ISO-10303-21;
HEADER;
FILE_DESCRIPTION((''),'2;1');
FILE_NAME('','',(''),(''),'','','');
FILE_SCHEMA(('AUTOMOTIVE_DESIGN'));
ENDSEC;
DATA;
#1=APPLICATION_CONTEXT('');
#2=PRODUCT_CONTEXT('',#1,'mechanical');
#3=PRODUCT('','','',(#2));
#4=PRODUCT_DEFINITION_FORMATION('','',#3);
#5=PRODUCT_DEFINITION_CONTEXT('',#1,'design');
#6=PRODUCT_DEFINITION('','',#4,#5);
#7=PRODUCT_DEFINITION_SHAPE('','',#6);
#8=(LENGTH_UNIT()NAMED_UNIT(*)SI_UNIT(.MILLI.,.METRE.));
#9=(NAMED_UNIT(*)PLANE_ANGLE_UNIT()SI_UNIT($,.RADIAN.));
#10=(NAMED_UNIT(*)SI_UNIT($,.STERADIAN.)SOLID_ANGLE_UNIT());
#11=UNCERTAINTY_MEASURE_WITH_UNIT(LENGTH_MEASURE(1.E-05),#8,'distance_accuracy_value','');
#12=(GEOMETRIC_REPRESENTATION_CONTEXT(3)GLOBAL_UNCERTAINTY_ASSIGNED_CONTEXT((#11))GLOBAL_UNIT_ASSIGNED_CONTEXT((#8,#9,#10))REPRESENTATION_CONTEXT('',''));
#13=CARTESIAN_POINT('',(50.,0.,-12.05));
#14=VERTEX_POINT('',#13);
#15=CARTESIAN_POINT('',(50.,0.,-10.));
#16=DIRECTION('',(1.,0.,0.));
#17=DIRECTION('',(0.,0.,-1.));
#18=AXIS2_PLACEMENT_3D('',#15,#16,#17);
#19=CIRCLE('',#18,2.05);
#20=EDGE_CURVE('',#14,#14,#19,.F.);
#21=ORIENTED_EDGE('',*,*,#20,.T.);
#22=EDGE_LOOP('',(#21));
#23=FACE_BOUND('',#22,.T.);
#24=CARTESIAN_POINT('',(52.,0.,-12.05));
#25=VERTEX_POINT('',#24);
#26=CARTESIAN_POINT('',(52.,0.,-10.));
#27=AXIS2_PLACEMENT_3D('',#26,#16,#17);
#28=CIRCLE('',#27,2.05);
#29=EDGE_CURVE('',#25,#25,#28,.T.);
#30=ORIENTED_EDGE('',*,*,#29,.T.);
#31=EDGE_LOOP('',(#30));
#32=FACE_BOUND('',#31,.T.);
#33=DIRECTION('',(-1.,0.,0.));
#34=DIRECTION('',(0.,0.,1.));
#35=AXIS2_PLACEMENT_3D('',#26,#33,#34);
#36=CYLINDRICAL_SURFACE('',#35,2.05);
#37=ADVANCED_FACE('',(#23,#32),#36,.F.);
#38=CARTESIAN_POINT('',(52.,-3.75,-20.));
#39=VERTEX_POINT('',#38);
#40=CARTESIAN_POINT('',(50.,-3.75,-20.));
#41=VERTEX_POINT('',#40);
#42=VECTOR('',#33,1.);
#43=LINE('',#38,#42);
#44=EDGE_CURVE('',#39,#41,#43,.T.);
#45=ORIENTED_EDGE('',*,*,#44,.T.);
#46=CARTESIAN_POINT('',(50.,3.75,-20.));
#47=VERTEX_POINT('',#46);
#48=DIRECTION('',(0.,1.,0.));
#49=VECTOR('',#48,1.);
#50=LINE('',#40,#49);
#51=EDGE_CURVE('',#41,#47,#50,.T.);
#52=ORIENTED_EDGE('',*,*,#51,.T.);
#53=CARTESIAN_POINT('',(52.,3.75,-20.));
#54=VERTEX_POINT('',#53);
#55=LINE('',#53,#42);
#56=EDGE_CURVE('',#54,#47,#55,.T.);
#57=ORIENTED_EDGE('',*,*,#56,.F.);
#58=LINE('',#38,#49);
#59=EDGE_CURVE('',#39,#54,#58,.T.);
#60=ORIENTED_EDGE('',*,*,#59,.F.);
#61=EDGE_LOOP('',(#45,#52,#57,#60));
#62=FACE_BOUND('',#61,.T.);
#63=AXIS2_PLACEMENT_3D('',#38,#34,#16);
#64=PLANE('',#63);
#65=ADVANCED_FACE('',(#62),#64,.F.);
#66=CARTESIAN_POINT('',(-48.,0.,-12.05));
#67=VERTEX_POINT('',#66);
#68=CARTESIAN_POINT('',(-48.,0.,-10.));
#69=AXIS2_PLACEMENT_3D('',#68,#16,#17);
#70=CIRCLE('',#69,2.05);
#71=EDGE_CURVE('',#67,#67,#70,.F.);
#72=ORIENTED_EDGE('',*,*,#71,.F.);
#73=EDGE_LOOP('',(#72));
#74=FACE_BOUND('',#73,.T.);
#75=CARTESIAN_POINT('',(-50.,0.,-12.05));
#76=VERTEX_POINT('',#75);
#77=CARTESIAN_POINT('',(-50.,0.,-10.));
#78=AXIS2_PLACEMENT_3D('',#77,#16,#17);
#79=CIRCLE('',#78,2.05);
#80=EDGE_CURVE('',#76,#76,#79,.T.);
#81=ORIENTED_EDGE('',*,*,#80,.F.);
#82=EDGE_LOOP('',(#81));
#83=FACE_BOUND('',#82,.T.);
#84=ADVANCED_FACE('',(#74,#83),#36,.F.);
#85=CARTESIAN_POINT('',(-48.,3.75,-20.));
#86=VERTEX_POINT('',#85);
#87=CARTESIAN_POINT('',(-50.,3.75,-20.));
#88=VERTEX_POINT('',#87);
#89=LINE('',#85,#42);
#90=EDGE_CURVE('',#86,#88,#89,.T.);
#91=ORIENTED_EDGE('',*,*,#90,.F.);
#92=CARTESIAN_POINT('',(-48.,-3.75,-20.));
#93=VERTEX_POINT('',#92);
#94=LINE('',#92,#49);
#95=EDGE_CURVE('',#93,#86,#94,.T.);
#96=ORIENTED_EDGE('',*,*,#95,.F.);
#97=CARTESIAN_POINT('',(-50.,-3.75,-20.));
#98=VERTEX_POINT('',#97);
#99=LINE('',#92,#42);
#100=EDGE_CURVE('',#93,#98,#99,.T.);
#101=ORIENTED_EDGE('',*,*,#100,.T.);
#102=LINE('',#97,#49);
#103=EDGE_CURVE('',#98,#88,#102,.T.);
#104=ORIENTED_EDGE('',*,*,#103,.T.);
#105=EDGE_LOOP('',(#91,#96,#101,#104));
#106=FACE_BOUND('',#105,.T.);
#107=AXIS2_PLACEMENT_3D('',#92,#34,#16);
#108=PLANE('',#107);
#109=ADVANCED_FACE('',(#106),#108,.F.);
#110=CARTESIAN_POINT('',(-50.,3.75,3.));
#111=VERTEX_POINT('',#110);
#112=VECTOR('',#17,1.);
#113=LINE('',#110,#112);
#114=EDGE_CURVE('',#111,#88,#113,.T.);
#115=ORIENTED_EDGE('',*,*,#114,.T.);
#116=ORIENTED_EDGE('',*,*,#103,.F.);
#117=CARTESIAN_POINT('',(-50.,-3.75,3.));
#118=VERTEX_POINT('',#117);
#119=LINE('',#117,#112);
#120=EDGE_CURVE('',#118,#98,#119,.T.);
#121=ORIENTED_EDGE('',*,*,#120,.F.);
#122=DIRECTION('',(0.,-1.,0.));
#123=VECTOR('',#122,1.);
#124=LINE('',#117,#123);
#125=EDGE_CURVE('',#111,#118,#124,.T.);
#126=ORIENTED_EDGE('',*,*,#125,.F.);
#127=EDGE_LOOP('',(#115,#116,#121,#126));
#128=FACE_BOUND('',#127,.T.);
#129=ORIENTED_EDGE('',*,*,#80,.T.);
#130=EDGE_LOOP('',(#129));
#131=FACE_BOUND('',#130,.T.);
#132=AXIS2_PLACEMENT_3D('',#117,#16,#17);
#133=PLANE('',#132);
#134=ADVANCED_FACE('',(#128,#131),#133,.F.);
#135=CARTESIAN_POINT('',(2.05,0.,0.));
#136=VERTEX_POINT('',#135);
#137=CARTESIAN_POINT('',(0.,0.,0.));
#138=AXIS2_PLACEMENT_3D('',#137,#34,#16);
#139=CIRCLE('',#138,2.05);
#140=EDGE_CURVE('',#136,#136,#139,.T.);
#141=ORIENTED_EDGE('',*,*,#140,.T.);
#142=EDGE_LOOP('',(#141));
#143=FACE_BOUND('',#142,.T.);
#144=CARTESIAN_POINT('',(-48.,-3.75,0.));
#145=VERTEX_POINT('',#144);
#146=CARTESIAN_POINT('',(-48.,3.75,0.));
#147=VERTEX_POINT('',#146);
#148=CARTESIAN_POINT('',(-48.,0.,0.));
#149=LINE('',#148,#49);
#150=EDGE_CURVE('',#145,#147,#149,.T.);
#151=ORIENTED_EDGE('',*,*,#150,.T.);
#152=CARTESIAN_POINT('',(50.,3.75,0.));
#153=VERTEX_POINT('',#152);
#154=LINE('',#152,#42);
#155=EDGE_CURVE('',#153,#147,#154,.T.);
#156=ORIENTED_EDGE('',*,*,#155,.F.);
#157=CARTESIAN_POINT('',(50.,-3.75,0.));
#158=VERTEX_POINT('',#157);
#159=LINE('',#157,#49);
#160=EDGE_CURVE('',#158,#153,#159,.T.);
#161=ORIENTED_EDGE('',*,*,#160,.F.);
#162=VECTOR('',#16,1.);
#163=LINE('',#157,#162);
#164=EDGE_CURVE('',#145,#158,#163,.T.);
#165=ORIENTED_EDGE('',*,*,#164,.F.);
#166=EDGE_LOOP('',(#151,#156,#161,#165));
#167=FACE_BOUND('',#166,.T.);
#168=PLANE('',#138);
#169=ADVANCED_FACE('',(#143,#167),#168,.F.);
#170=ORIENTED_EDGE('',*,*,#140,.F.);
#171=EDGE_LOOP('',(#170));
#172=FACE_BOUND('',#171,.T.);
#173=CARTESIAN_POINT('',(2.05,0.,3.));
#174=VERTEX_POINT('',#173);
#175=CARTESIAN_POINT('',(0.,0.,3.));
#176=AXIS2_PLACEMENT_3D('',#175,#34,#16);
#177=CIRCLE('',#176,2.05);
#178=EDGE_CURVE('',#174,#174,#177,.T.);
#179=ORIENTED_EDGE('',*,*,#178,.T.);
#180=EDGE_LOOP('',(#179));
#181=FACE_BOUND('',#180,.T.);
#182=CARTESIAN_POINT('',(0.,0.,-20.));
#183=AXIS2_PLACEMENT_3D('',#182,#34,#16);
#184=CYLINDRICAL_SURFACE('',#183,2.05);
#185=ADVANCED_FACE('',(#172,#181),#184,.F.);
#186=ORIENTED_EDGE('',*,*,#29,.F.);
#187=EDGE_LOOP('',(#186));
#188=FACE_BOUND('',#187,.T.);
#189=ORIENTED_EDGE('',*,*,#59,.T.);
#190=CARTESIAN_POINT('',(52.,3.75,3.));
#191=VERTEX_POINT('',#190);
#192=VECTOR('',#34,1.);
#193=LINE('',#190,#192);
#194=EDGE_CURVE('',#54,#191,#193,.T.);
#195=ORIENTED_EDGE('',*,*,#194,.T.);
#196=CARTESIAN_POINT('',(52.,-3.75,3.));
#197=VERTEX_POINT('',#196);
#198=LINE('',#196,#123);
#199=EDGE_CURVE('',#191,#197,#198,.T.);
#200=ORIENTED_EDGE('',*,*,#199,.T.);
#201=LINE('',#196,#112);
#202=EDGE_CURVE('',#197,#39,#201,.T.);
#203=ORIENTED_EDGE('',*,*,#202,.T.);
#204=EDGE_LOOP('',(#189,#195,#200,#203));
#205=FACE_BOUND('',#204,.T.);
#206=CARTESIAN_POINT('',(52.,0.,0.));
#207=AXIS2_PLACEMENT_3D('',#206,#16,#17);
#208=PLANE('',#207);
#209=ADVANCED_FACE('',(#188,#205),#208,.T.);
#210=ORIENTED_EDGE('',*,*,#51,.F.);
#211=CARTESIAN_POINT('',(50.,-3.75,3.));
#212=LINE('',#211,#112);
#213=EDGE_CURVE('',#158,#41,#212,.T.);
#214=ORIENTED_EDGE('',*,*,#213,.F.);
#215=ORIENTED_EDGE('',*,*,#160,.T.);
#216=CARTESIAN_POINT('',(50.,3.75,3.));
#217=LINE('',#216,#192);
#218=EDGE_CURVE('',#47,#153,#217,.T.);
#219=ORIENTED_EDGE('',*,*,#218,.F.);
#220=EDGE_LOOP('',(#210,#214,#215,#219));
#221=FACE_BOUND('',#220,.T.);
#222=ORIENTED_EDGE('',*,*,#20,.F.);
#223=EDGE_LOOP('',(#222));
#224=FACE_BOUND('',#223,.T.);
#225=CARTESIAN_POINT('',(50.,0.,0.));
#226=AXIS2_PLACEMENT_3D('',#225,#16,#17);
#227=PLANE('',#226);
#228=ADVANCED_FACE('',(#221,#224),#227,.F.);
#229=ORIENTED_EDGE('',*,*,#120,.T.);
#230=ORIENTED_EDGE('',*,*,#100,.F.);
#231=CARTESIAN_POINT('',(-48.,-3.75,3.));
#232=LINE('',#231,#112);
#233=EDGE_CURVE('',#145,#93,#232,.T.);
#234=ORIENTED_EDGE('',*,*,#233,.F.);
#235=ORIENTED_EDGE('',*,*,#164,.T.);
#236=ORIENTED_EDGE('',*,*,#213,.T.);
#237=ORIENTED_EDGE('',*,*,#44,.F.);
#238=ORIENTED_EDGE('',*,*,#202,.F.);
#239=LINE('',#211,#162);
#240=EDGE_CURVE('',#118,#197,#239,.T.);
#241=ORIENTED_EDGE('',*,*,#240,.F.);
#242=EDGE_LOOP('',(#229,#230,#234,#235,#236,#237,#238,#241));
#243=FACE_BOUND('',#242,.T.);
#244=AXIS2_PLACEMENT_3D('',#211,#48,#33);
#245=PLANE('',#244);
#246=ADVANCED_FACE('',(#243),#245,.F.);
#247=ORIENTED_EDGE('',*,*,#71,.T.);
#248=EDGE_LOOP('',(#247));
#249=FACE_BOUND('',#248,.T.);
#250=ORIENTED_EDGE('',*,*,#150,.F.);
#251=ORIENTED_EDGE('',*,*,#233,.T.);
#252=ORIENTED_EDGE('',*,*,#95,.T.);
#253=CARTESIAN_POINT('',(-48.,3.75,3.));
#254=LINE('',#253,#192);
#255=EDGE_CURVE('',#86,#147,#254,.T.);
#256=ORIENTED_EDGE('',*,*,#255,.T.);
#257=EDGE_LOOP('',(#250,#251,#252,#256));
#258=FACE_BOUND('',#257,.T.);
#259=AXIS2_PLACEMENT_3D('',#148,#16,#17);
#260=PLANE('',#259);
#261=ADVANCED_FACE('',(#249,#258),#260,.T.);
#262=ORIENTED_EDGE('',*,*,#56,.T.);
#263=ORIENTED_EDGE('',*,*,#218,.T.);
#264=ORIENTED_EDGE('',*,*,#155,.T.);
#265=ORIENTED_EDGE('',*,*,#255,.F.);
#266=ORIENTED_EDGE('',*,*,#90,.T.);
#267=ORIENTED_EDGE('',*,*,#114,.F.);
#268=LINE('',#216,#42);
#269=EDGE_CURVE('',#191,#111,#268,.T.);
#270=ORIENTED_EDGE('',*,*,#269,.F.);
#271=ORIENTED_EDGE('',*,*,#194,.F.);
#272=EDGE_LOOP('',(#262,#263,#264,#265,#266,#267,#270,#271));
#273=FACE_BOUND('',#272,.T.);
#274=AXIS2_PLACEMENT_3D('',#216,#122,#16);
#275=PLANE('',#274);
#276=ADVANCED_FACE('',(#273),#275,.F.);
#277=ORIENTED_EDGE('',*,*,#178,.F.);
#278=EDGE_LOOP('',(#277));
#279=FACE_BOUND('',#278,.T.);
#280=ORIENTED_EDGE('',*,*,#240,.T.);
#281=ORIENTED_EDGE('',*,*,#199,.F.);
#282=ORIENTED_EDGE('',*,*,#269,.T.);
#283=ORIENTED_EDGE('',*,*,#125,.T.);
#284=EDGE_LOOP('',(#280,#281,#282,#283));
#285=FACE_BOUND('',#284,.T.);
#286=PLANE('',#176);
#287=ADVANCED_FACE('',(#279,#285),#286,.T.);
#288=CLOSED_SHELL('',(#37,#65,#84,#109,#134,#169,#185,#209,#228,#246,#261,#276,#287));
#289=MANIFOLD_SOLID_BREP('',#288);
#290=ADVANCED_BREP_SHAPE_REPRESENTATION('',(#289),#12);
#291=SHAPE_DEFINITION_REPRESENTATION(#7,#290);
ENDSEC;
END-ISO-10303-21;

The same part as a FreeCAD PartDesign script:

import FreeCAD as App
import Part
import Sketcher
from FreeCAD import Vector

doc = App.newDocument("Part")
body = doc.addObject("PartDesign::Body", "Body")

sketch1 = doc.addObject("Sketcher::SketchObject", "Sketch")
body.addObject(sketch1)
sketch1.AttachmentSupport = (doc.XY_Plane, [""])
sketch1.MapMode = "FlatFace"
sketch1.addGeometry([
    Part.LineSegment(Vector(-50, 4, 0), Vector(-50, -4, 0)),
    Part.LineSegment(Vector(-50, -4, 0), Vector(50, -4, 0)),
    Part.LineSegment(Vector(50, -4, 0), Vector(50, 4, 0)),
    Part.LineSegment(Vector(50, 4, 0), Vector(-50, 4, 0)),
], False)
sketch1.addConstraint([
    Sketcher.Constraint("Coincident", 0, 2, 1, 1),
    Sketcher.Constraint("Coincident", 1, 2, 2, 1),
    Sketcher.Constraint("Coincident", 2, 2, 3, 1),
    Sketcher.Constraint("Coincident", 3, 2, 0, 1),
    Sketcher.Constraint("Vertical", 0),
    Sketcher.Constraint("Horizontal", 1),
    Sketcher.Constraint("Vertical", 2),
    Sketcher.Constraint("Horizontal", 3),
    Sketcher.Constraint("Symmetric", 0, 2, 2, 2, -1, 1),
    Sketcher.Constraint("DistanceX", 1, 1, 1, 2, 100.0),
    Sketcher.Constraint("DistanceY", 0, 2, 0, 1, 7.5),
])
pad1 = doc.addObject("PartDesign::Pad", "Pad")
body.addObject(pad1)
pad1.Profile = sketch1
pad1.Length = 3

sketch2 = doc.addObject("Sketcher::SketchObject", "Sketch001")
body.addObject(sketch2)
sketch2.AttachmentSupport = (doc.YZ_Plane, [""])
sketch2.MapMode = "FlatFace"
sketch2.AttachmentOffset = App.Placement(Vector(0, 0, 50), App.Rotation())
sketch2.addGeometry([
    Part.LineSegment(Vector(4, 3, 0), Vector(-4, 3, 0)),
    Part.LineSegment(Vector(-4, 3, 0), Vector(-4, -20, 0)),
    Part.LineSegment(Vector(-4, -20, 0), Vector(4, -20, 0)),
    Part.LineSegment(Vector(4, -20, 0), Vector(4, 3, 0)),
], False)
sketch2.addConstraint([
    Sketcher.Constraint("Coincident", 0, 2, 1, 1),
    Sketcher.Constraint("Coincident", 1, 2, 2, 1),
    Sketcher.Constraint("Coincident", 2, 2, 3, 1),
    Sketcher.Constraint("Coincident", 3, 2, 0, 1),
    Sketcher.Constraint("Horizontal", 0),
    Sketcher.Constraint("Vertical", 1),
    Sketcher.Constraint("Horizontal", 2),
    Sketcher.Constraint("Vertical", 3),
    Sketcher.Constraint("DistanceY", 1, 2, 1, 1, 23.0),
    Sketcher.Constraint("DistanceX", 0, 2, 0, 1, 7.5),
    Sketcher.Constraint("DistanceY", -1, 1, 0, 2, 3.0),
    Sketcher.Constraint("DistanceX", 0, 2, -1, 1, 3.75),
])
pad2 = doc.addObject("PartDesign::Pad", "Pad001")
body.addObject(pad2)
pad2.Profile = sketch2
pad2.Length = 2

sketch3 = doc.addObject("Sketcher::SketchObject", "Sketch002")
body.addObject(sketch3)
sketch3.AttachmentSupport = (doc.YZ_Plane, [""])
sketch3.MapMode = "FlatFace"
sketch3.AttachmentOffset = App.Placement(Vector(0, 0, -50), App.Rotation())
sketch3.addGeometry([
    Part.LineSegment(Vector(4, 3, 0), Vector(-4, 3, 0)),
    Part.LineSegment(Vector(-4, 3, 0), Vector(-4, -20, 0)),
    Part.LineSegment(Vector(-4, -20, 0), Vector(4, -20, 0)),
    Part.LineSegment(Vector(4, -20, 0), Vector(4, 3, 0)),
], False)
sketch3.addConstraint([
    Sketcher.Constraint("Coincident", 0, 2, 1, 1),
    Sketcher.Constraint("Coincident", 1, 2, 2, 1),
    Sketcher.Constraint("Coincident", 2, 2, 3, 1),
    Sketcher.Constraint("Coincident", 3, 2, 0, 1),
    Sketcher.Constraint("Horizontal", 0),
    Sketcher.Constraint("Vertical", 1),
    Sketcher.Constraint("Horizontal", 2),
    Sketcher.Constraint("Vertical", 3),
    Sketcher.Constraint("DistanceY", 1, 2, 1, 1, 23.0),
    Sketcher.Constraint("DistanceX", 0, 2, 0, 1, 7.5),
    Sketcher.Constraint("DistanceY", -1, 1, 0, 2, 3.0),
    Sketcher.Constraint("DistanceX", 0, 2, -1, 1, 3.75),
])
pad3 = doc.addObject("PartDesign::Pad", "Pad002")
body.addObject(pad3)
pad3.Profile = sketch3
pad3.Length = 2

sketch4 = doc.addObject("Sketcher::SketchObject", "Sketch003")
body.addObject(sketch4)
sketch4.AttachmentSupport = (doc.YZ_Plane, [""])
sketch4.MapMode = "FlatFace"
sketch4.AttachmentOffset = App.Placement(Vector(0, 0, -50), App.Rotation())
sketch4.addGeometry(Part.Circle(Vector(0, -10, 0), Vector(0, 0, 1), 2), False)
sketch4.addConstraint([
    Sketcher.Constraint("PointOnObject", 0, 3, -2),
    Sketcher.Constraint("Diameter", 0, 4.1),
    Sketcher.Constraint("DistanceY", 0, 3, -1, 1, 10.0),
])
pocket1 = doc.addObject("PartDesign::Pocket", "Pocket")
body.addObject(pocket1)
pocket1.Profile = sketch4
pocket1.Type = "ThroughAll"
pocket1.Reversed = True

sketch5 = doc.addObject("Sketcher::SketchObject", "Sketch004")
body.addObject(sketch5)
sketch5.AttachmentSupport = (doc.XY_Plane, [""])
sketch5.MapMode = "FlatFace"
sketch5.AttachmentOffset = App.Placement(Vector(0, 0, 3), App.Rotation())
sketch5.addGeometry(Part.Circle(Vector(0, 0, 0), Vector(0, 0, 1), 2), False)
sketch5.addConstraint([
    Sketcher.Constraint("Coincident", 0, 3, -1, 1),
    Sketcher.Constraint("Diameter", 0, 4.1),
])
pocket2 = doc.addObject("PartDesign::Pocket", "Pocket001")
body.addObject(pocket2)
pocket2.Profile = sketch5
pocket2.Type = "ThroughAll"

doc.recompute()
